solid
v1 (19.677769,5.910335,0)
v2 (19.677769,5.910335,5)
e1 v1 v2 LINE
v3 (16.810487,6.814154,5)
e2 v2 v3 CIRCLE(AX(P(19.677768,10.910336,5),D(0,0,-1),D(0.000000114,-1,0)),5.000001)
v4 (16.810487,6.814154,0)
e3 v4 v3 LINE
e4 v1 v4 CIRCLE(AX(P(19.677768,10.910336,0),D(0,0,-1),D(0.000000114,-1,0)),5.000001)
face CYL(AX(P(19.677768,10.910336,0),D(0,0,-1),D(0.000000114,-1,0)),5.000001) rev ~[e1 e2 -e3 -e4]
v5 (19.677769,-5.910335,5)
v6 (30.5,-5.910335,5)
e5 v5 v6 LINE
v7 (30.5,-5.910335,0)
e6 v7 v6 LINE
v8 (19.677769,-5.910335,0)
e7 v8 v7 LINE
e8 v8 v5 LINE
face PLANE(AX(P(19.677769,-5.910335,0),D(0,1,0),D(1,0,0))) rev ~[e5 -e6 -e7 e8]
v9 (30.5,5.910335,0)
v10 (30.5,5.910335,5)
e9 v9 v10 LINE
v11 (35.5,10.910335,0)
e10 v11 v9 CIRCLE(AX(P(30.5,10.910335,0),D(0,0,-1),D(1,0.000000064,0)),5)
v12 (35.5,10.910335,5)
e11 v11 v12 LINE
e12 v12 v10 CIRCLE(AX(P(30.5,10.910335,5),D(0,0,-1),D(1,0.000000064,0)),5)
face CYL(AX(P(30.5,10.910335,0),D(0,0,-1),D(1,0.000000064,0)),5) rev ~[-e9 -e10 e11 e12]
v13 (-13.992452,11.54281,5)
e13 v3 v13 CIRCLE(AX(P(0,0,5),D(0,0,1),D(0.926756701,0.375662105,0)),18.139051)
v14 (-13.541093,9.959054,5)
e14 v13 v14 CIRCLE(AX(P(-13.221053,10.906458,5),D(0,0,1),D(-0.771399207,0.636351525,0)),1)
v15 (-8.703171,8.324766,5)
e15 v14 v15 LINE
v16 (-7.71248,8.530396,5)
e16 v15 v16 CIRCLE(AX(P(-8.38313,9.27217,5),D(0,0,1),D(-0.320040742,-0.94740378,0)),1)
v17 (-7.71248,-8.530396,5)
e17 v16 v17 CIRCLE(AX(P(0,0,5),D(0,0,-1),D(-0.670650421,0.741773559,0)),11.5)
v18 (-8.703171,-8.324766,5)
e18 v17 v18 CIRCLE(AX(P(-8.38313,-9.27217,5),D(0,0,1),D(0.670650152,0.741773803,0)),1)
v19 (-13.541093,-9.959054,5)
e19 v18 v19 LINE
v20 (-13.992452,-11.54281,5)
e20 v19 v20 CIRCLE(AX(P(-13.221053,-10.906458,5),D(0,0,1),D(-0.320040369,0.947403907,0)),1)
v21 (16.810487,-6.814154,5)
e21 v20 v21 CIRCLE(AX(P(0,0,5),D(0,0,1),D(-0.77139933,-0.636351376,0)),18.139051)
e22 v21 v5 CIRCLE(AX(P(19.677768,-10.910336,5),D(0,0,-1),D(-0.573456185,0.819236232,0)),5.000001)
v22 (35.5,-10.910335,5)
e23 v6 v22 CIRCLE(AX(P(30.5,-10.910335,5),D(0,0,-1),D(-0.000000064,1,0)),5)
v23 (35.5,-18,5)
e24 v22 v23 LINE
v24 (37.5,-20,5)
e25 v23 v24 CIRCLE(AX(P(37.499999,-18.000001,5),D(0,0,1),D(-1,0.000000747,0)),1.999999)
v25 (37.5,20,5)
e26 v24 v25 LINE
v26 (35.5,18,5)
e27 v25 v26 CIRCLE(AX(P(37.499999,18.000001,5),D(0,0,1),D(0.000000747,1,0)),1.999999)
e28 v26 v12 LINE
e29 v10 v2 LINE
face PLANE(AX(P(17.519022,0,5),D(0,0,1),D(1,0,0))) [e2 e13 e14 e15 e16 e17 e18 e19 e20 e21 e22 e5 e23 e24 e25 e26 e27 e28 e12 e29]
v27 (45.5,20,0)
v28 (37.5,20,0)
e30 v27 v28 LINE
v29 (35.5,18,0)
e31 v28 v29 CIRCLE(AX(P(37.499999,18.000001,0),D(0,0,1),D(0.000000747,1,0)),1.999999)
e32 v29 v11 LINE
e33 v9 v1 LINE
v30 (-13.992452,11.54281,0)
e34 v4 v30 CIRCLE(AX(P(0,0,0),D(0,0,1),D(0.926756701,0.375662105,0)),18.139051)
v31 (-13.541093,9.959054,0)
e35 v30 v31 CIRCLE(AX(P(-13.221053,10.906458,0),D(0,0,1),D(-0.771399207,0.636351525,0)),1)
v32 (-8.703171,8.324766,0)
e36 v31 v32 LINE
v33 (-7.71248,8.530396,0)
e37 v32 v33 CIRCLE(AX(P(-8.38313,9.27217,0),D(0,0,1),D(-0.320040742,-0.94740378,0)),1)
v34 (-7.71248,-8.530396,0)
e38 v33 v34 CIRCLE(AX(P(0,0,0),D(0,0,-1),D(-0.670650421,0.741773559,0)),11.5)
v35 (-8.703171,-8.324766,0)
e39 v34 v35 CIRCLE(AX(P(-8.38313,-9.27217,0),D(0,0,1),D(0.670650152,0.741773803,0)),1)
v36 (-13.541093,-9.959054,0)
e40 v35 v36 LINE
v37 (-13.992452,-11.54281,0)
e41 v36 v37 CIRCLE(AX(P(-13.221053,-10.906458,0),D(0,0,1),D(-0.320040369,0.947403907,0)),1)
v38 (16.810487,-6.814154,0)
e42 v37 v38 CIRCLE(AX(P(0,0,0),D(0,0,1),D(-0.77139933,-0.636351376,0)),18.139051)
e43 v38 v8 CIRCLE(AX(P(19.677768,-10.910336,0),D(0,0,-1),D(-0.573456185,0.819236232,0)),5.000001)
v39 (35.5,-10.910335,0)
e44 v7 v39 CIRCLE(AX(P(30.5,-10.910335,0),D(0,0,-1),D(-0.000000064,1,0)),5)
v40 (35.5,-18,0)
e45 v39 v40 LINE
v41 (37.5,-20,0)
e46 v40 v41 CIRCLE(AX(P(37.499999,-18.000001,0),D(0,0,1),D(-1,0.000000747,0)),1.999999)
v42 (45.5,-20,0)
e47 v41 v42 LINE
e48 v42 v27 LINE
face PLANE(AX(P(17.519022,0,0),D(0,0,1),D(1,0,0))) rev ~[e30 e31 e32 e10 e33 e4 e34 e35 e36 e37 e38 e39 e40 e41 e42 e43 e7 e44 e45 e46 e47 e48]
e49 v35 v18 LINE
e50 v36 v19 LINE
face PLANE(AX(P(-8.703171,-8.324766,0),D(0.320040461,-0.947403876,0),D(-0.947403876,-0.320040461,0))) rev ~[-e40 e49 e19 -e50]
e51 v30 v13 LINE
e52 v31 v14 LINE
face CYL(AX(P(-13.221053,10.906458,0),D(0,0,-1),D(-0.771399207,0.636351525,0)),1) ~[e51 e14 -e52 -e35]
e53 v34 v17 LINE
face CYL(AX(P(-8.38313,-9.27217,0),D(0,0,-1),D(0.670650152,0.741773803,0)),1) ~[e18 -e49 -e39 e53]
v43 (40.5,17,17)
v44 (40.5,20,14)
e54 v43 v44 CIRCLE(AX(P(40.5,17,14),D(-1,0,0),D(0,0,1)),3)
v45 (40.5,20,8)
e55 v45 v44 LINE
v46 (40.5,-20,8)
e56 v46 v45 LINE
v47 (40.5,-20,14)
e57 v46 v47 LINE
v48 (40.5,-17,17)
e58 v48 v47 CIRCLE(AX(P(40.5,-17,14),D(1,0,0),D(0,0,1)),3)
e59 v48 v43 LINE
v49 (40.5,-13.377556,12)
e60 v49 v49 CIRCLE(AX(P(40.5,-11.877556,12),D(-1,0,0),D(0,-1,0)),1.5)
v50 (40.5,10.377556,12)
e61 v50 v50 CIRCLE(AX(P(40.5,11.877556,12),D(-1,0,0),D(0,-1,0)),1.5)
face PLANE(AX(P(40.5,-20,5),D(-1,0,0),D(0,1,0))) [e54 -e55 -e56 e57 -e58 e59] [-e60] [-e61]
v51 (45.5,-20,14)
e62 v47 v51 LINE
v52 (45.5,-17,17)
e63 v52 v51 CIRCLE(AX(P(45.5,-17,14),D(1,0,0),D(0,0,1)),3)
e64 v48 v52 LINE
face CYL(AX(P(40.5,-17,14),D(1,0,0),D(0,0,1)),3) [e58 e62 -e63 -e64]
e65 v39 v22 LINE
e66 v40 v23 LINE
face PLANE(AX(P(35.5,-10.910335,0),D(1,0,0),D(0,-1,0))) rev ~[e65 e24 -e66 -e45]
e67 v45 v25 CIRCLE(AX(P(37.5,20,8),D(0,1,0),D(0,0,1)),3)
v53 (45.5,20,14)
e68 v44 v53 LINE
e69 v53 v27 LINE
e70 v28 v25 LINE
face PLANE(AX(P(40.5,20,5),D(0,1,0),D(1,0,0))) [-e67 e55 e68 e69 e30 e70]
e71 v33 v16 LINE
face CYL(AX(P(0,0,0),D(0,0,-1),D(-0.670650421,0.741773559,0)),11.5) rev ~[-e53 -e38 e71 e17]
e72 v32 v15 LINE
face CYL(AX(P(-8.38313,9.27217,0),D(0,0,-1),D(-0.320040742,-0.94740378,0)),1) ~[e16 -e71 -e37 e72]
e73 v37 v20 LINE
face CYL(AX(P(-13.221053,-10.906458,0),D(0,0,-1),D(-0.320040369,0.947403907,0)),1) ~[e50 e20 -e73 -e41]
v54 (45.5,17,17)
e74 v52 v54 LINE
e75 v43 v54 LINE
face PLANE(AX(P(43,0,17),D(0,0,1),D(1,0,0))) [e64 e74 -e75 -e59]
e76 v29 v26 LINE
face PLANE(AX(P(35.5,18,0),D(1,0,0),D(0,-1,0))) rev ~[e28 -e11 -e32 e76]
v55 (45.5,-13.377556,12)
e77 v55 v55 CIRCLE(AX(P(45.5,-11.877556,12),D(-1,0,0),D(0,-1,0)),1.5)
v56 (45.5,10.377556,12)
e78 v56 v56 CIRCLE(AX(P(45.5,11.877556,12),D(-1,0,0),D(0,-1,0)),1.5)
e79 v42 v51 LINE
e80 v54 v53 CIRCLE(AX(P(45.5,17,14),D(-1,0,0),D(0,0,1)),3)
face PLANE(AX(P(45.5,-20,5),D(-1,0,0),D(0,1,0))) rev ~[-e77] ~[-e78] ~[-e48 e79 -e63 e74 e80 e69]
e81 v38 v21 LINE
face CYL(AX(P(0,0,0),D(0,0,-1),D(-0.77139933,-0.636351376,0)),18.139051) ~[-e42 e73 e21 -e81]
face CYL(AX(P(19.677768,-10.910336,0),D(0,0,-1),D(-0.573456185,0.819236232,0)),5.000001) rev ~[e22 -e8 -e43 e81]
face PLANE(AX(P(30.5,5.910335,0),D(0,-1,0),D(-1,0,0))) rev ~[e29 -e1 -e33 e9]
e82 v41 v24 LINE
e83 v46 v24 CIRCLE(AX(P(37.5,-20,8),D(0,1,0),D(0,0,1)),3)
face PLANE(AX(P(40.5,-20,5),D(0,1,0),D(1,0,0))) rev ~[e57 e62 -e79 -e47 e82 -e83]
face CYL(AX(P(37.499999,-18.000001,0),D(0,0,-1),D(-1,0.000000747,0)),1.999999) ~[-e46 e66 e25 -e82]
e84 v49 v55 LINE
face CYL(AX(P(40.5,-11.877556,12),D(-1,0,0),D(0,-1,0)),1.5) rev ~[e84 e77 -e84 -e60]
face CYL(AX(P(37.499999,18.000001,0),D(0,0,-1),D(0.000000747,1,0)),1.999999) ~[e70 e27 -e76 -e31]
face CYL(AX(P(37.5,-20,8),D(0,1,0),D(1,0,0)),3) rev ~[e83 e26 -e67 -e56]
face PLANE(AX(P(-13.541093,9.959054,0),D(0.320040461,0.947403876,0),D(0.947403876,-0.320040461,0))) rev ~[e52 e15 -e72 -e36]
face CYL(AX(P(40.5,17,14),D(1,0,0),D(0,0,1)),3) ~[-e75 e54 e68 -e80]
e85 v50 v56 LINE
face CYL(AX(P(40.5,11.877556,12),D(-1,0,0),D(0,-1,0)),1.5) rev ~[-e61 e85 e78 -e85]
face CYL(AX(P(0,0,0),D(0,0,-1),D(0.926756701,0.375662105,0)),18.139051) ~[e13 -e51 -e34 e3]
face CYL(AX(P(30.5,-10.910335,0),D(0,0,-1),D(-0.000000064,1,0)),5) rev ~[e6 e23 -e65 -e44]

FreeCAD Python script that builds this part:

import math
import FreeCAD as App
import Part
import Sketcher

V = App.Vector


def edges_at(feature, points):
    """Names of the edges that pass closest to the given points."""
    edges = feature.Shape.Edges
    near = lambda p: min(range(len(edges)), key=lambda i: edges[i].distToShape(Part.Vertex(*p))[0])
    return sorted({f"Edge{near(p) + 1}" for p in points})

doc = App.newDocument("Part")
body = doc.addObject("PartDesign::Body", "Body")

# Sketch on XY plane
sketch1 = doc.addObject("Sketcher::SketchObject", "Sketch")
body.addObject(sketch1)
sketch1.AttachmentSupport = (doc.XY_Plane, [""])
sketch1.MapMode = "FlatFace"
sketch1.addGeometry(Part.ArcOfCircle(Part.Circle(V(0, 0, 0), V(0, 0, 1), 11.5), math.radians(-132), math.radians(132)), False)
sketch1.addGeometry(Part.ArcOfCircle(Part.Circle(V(-8.4, -9.3, 0), V(0, 0, 1), 1), math.radians(48), math.radians(109)), False)
sketch1.addGeometry(Part.LineSegment(V(-8.7, -8.3, 0), V(-13.5, -10, 0)), False)
sketch1.addGeometry(Part.ArcOfCircle(Part.Circle(V(-13.2, -10.9, 0), V(0, 0, 1), 1), math.radians(109), math.radians(220)), False)
sketch1.addGeometry(Part.ArcOfCircle(Part.Circle(V(0, 0, 0), V(0, 0, 1), 18.1), math.radians(-140), math.radians(-22)), False)
sketch1.addGeometry(Part.ArcOfCircle(Part.Circle(V(19.7, -10.9, 0), V(0, 0, 1), 5), math.radians(90), math.radians(125)), False)
sketch1.addGeometry(Part.LineSegment(V(19.7, -5.9, 0), V(30.5, -5.9, 0)), False)
sketch1.addGeometry(Part.ArcOfCircle(Part.Circle(V(30.5, -10.9, 0), V(0, 0, 1), 5), math.radians(0), math.radians(90)), False)
sketch1.addGeometry(Part.LineSegment(V(35.5, -10.9, 0), V(35.5, -18, 0)), False)
sketch1.addGeometry(Part.ArcOfCircle(Part.Circle(V(37.5, -18, 0), V(0, 0, 1), 2), math.radians(180), math.radians(270)), False)
sketch1.addGeometry(Part.LineSegment(V(37.5, -20, 0), V(45.5, -20, 0)), False)
sketch1.addGeometry(Part.LineSegment(V(45.5, -20, 0), V(45.5, 20, 0)), False)
sketch1.addGeometry(Part.LineSegment(V(45.5, 20, 0), V(37.5, 20, 0)), False)
sketch1.addGeometry(Part.ArcOfCircle(Part.Circle(V(37.5, 18, 0), V(0, 0, 1), 2), math.radians(90), math.radians(180)), False)
sketch1.addGeometry(Part.LineSegment(V(35.5, 18, 0), V(35.5, 10.9, 0)), False)
sketch1.addGeometry(Part.ArcOfCircle(Part.Circle(V(30.5, 10.9, 0), V(0, 0, 1), 5), math.radians(-90), math.radians(0)), False)
sketch1.addGeometry(Part.LineSegment(V(30.5, 5.9, 0), V(19.7, 5.9, 0)), False)
sketch1.addGeometry(Part.ArcOfCircle(Part.Circle(V(19.7, 10.9, 0), V(0, 0, 1), 5), math.radians(-125), math.radians(-90)), False)
sketch1.addGeometry(Part.ArcOfCircle(Part.Circle(V(0, 0, 0), V(0, 0, 1), 18.1), math.radians(22), math.radians(140)), False)
sketch1.addGeometry(Part.ArcOfCircle(Part.Circle(V(-13.2, 10.9, 0), V(0, 0, 1), 1), math.radians(140), math.radians(251)), False)
sketch1.addGeometry(Part.LineSegment(V(-13.5, 10, 0), V(-8.7, 8.3, 0)), False)
sketch1.addGeometry(Part.ArcOfCircle(Part.Circle(V(-8.4, 9.3, 0), V(0, 0, 1), 1), math.radians(-109), math.radians(-48)), False)
sketch1.addConstraint(Sketcher.Constraint("Tangent", 0, 1, 1, 1))
sketch1.addConstraint(Sketcher.Constraint("Tangent", 1, 2, 2, 1))
sketch1.addConstraint(Sketcher.Constraint("Tangent", 2, 2, 3, 1))
sketch1.addConstraint(Sketcher.Constraint("Tangent", 3, 2, 4, 1))
sketch1.addConstraint(Sketcher.Constraint("Coincident", 4, 2, 5, 2))
sketch1.addConstraint(Sketcher.Constraint("Tangent", 5, 1, 6, 1))
sketch1.addConstraint(Sketcher.Constraint("Tangent", 6, 2, 7, 2))
sketch1.addConstraint(Sketcher.Constraint("Tangent", 7, 1, 8, 1))
sketch1.addConstraint(Sketcher.Constraint("Tangent", 8, 2, 9, 1))
sketch1.addConstraint(Sketcher.Constraint("Tangent", 9, 2, 10, 1))
sketch1.addConstraint(Sketcher.Constraint("Coincident", 10, 2, 11, 1))
sketch1.addConstraint(Sketcher.Constraint("Coincident", 11, 2, 12, 1))
sketch1.addConstraint(Sketcher.Constraint("Tangent", 12, 2, 13, 1))
sketch1.addConstraint(Sketcher.Constraint("Tangent", 13, 2, 14, 1))
sketch1.addConstraint(Sketcher.Constraint("Tangent", 14, 2, 15, 2))
sketch1.addConstraint(Sketcher.Constraint("Tangent", 15, 1, 16, 1))
sketch1.addConstraint(Sketcher.Constraint("Tangent", 16, 2, 17, 2))
sketch1.addConstraint(Sketcher.Constraint("Coincident", 17, 1, 18, 1))
sketch1.addConstraint(Sketcher.Constraint("Tangent", 18, 2, 19, 1))
sketch1.addConstraint(Sketcher.Constraint("Tangent", 19, 2, 20, 1))
sketch1.addConstraint(Sketcher.Constraint("Tangent", 20, 2, 21, 1))
sketch1.addConstraint(Sketcher.Constraint("Tangent", 21, 2, 0, 2))
sketch1.addConstraint(Sketcher.Constraint("Horizontal", 6))
sketch1.addConstraint(Sketcher.Constraint("Vertical", 8))
sketch1.addConstraint(Sketcher.Constraint("Horizontal", 10))
sketch1.addConstraint(Sketcher.Constraint("Vertical", 11))
sketch1.addConstraint(Sketcher.Constraint("Horizontal", 12))
sketch1.addConstraint(Sketcher.Constraint("Vertical", 14))
sketch1.addConstraint(Sketcher.Constraint("Horizontal", 16))
sketch1.addConstraint(Sketcher.Constraint("Coincident", 0, 3, -1, 1))
sketch1.addConstraint(Sketcher.Constraint("Coincident", 4, 3, -1, 1))
sketch1.addConstraint(Sketcher.Constraint("Coincident", 18, 3, -1, 1))
sketch1.addConstraint(Sketcher.Constraint("Equal", 1, 3))
sketch1.addConstraint(Sketcher.Constraint("Equal", 5, 7))
sketch1.addConstraint(Sketcher.Constraint("Equal", 9, 13))
sketch1.addConstraint(Sketcher.Constraint("Equal", 7, 15))
sketch1.addConstraint(Sketcher.Constraint("Equal", 15, 17))
sketch1.addConstraint(Sketcher.Constraint("Equal", 4, 18))
sketch1.addConstraint(Sketcher.Constraint("Equal", 3, 19))
sketch1.addConstraint(Sketcher.Constraint("Equal", 19, 21))
sketch1.addConstraint(Sketcher.Constraint("Symmetric", 9, 3, 13, 3, -1))
sketch1.addConstraint(Sketcher.Constraint("Symmetric", 5, 3, 17, 3, -1))
sketch1.addConstraint(Sketcher.Constraint("Symmetric", 2, 2, 19, 2, -1))
sketch1.addConstraint(Sketcher.Constraint("Radius", 1, 1.0))
sketch1.addConstraint(Sketcher.Constraint("Radius", 5, 5.000001))
sketch1.addConstraint(Sketcher.Constraint("Radius", 9, 1.999999))
sketch1.addConstraint(Sketcher.Constraint("Radius", 0, 11.5))
sketch1.addConstraint(Sketcher.Constraint("DistanceX", 10, 1, 10, 2, 8.0))
sketch1.addConstraint(Sketcher.Constraint("DistanceY", 11, 1, 11, 2, 40.0))
sketch1.addConstraint(Sketcher.Constraint("DistanceX", -1, 1, 7, 3, 30.5))
sketch1.addConstraint(Sketcher.Constraint("Radius", 4, 18.139051))
sketch1.addConstraint(Sketcher.Constraint("DistanceX", 6, 1, 6, 2, 10.822231))
sketch1.addConstraint(Sketcher.Constraint("DistanceX", 1, 3, 5, 3, 28.060899))
sketch1.addConstraint(Sketcher.Constraint("DistanceX", 3, 2, 3, 3, 0.771399))
sketch1.addConstraint(Sketcher.Constraint("DistanceY", 8, 2, 8, 1, 7.089665))
pad1 = doc.addObject("PartDesign::Pad", "Pad")
body.addObject(pad1)
pad1.Profile = sketch1
pad1.Length = 5

# Sketch on XY plane
sketch2 = doc.addObject("Sketcher::SketchObject", "Sketch001")
body.addObject(sketch2)
sketch2.AttachmentSupport = (doc.XY_Plane, [""])
sketch2.MapMode = "FlatFace"
sketch2.AttachmentOffset = App.Placement(V(0, 0, 5), App.Rotation())
sketch2.addGeometry(Part.LineSegment(V(40, 20, 0), V(40, -20, 0)), False)
sketch2.addGeometry(Part.LineSegment(V(40, -20, 0), V(46, -20, 0)), False)
sketch2.addGeometry(Part.LineSegment(V(46, -20, 0), V(46, 20, 0)), False)
sketch2.addGeometry(Part.LineSegment(V(46, 20, 0), V(40, 20, 0)), False)
sketch2.addConstraint(Sketcher.Constraint("Coincident", 0, 2, 1, 1))
sketch2.addConstraint(Sketcher.Constraint("Coincident", 1, 2, 2, 1))
sketch2.addConstraint(Sketcher.Constraint("Coincident", 2, 2, 3, 1))
sketch2.addConstraint(Sketcher.Constraint("Coincident", 3, 2, 0, 1))
sketch2.addConstraint(Sketcher.Constraint("Vertical", 0))
sketch2.addConstraint(Sketcher.Constraint("Horizontal", 1))
sketch2.addConstraint(Sketcher.Constraint("Vertical", 2))
sketch2.addConstraint(Sketcher.Constraint("Horizontal", 3))
sketch2.addConstraint(Sketcher.Constraint("DistanceX", 1, 1, 1, 2, 5.0))
sketch2.addConstraint(Sketcher.Constraint("DistanceY", 0, 2, 0, 1, 40.0))
sketch2.addConstraint(Sketcher.Constraint("DistanceY", 0, 2, -1, 1, 20.0))
sketch2.addConstraint(Sketcher.Constraint("DistanceX", -1, 1, 0, 2, 40.5))
pad2 = doc.addObject("PartDesign::Pad", "Pad001")
body.addObject(pad2)
pad2.Profile = sketch2
pad2.Length = 12
doc.recompute()

fillet = doc.addObject("PartDesign::Fillet", "Fillet")
body.addObject(fillet)
fillet.Base = (pad2, edges_at(pad2, [(40.5, 0, 5), (43, 20, 17), (43, -20, 17)]))
fillet.Radius = 3

# Sketch on YZ plane
sketch3 = doc.addObject("Sketcher::SketchObject", "Sketch002")
body.addObject(sketch3)
sketch3.AttachmentSupport = (doc.YZ_Plane, [""])
sketch3.MapMode = "FlatFace"
sketch3.AttachmentOffset = App.Placement(V(0, 0, 40.5), App.Rotation())
sketch3.addGeometry(Part.Circle(V(11.9, 12, 0), V(0, 0, 1), 1.5), False)
sketch3.addGeometry(Part.Circle(V(-11.9, 12, 0), V(0, 0, 1), 1.5), False)
sketch3.addConstraint(Sketcher.Constraint("Equal", 0, 1))
sketch3.addConstraint(Sketcher.Constraint("Symmetric", 0, 3, 1, 3, -2))
sketch3.addConstraint(Sketcher.Constraint("Diameter", 0, 3.0))
sketch3.addConstraint(Sketcher.Constraint("DistanceY", -1, 1, 0, 3, 12.0))
sketch3.addConstraint(Sketcher.Constraint("DistanceX", -1, 1, 0, 3, 11.877556))
pocket1 = doc.addObject("PartDesign::Pocket", "Pocket")
body.addObject(pocket1)
pocket1.Profile = sketch3
pocket1.Length = 10
pocket1.Reversed = True

doc.recompute()
